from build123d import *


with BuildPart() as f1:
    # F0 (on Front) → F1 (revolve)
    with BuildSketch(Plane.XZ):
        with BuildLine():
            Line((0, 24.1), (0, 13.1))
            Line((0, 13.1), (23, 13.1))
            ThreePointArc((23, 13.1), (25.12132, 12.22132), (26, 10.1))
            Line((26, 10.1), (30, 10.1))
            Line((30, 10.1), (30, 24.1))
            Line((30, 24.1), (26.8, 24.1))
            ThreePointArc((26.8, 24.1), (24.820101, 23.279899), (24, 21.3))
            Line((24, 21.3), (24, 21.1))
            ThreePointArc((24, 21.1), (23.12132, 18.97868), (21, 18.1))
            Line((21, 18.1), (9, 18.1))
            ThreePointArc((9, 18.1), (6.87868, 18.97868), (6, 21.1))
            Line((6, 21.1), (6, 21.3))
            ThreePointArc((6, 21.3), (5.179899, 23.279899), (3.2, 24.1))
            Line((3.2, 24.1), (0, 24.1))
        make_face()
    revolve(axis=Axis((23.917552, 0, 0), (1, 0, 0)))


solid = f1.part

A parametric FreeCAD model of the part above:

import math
import FreeCAD as App
import Part
import Sketcher
Q = App.Units.Quantity

doc = App.newDocument("Part")
body = doc.addObject("PartDesign::Body", "Body")

sketch1 = body.newObject("Sketcher::SketchObject", "Sketch")
sketch1.AttachmentSupport = (doc.getObject("XZ_Plane"), [""])
sketch1.MapMode = "FlatFace"
sketch1.addGeometry([
    Part.LineSegment(App.Vector(0, 24.1, 0), App.Vector(0, 13.1, 0)),
    Part.LineSegment(App.Vector(0, 13.1, 0), App.Vector(23, 13.1, 0)),
    Part.ArcOfCircle(Part.Circle(App.Vector(23, 10.1, 0), App.Vector(0, 0, 1), 3), math.radians(0), math.radians(90)),
    Part.LineSegment(App.Vector(26, 10.1, 0), App.Vector(30, 10.1, 0)),
    Part.LineSegment(App.Vector(30, 10.1, 0), App.Vector(30, 24.1, 0)),
    Part.LineSegment(App.Vector(30, 24.1, 0), App.Vector(26.8, 24.1, 0)),
    Part.ArcOfCircle(Part.Circle(App.Vector(26.8, 21.3, 0), App.Vector(0, 0, 1), 2.8), math.radians(90), math.radians(180)),
    Part.LineSegment(App.Vector(24, 21.3, 0), App.Vector(24, 21.1, 0)),
    Part.ArcOfCircle(Part.Circle(App.Vector(21, 21.1, 0), App.Vector(0, 0, 1), 3), math.radians(-90), math.radians(0)),
    Part.LineSegment(App.Vector(21, 18.1, 0), App.Vector(9, 18.1, 0)),
    Part.ArcOfCircle(Part.Circle(App.Vector(9, 21.1, 0), App.Vector(0, 0, 1), 3), math.radians(-180), math.radians(-90)),
    Part.LineSegment(App.Vector(6, 21.1, 0), App.Vector(6, 21.3, 0)),
    Part.ArcOfCircle(Part.Circle(App.Vector(3.2, 21.3, 0), App.Vector(0, 0, 1), 2.8), math.radians(0), math.radians(90)),
    Part.LineSegment(App.Vector(3.2, 24.1, 0), App.Vector(0, 24.1, 0)),
], False)
sketch1.addConstraint([
    Sketcher.Constraint("Coincident", 0, 2, 1, 1),
    Sketcher.Constraint("Tangent", 1, 2, 2, 2),
    Sketcher.Constraint("Coincident", 2, 1, 3, 1),
    Sketcher.Constraint("Coincident", 3, 2, 4, 1),
    Sketcher.Constraint("Coincident", 4, 2, 5, 1),
    Sketcher.Constraint("Tangent", 5, 2, 6, 1),
    Sketcher.Constraint("Tangent", 6, 2, 7, 1),
    Sketcher.Constraint("Tangent", 7, 2, 8, 2),
    Sketcher.Constraint("Tangent", 8, 1, 9, 1),
    Sketcher.Constraint("Tangent", 9, 2, 10, 2),
    Sketcher.Constraint("Tangent", 10, 1, 11, 1),
    Sketcher.Constraint("Tangent", 11, 2, 12, 1),
    Sketcher.Constraint("Tangent", 12, 2, 13, 1),
    Sketcher.Constraint("Coincident", 13, 2, 0, 1),
    Sketcher.Constraint("Vertical", 0),
    Sketcher.Constraint("Horizontal", 1),
    Sketcher.Constraint("Horizontal", 3),
    Sketcher.Constraint("Vertical", 4),
    Sketcher.Constraint("Horizontal", 5),
    Sketcher.Constraint("Vertical", 7),
    Sketcher.Constraint("Horizontal", 9),
    Sketcher.Constraint("Vertical", 11),
    Sketcher.Constraint("Horizontal", 13),
    Sketcher.Constraint("Equal", 2, 8),
    Sketcher.Constraint("Equal", 8, 10),
    Sketcher.Constraint("Equal", 6, 12),
    Sketcher.Constraint("PointOnObject", 0, 2, -2),
    Sketcher.Constraint("Horizontal", 6, 3, 12, 3),
    Sketcher.Constraint("Equal", 5, 13),
    Sketcher.Constraint("Radius", 2, Q("3.000001 mm")),
    Sketcher.Constraint("Radius", 6, Q("2.8 mm")),
    Sketcher.Constraint("DistanceX", 1, 1, 1, 2, Q("23 mm")),
    Sketcher.Constraint("DistanceX", 3, 1, 3, 2, Q("4 mm")),
    Sketcher.Constraint("DistanceX", 9, 2, 9, 1, Q("12 mm")),
    Sketcher.Constraint("DistanceY", 0, 2, 0, 1, Q("11 mm")),
    Sketcher.Constraint("DistanceY", 4, 1, 4, 2, Q("14 mm")),
    Sketcher.Constraint("DistanceY", 7, 2, 7, 1, Q("0.2 mm")),
    Sketcher.Constraint("DistanceY", -1, 1, 2, 3, Q("10.099999 mm")),
])
revolution = body.newObject("PartDesign::Revolution", "Revolution")
revolution.Profile = sketch1
revolution.ReferenceAxis = (sketch1, ["H_Axis"])
revolution.Angle = 360

doc.recompute()
